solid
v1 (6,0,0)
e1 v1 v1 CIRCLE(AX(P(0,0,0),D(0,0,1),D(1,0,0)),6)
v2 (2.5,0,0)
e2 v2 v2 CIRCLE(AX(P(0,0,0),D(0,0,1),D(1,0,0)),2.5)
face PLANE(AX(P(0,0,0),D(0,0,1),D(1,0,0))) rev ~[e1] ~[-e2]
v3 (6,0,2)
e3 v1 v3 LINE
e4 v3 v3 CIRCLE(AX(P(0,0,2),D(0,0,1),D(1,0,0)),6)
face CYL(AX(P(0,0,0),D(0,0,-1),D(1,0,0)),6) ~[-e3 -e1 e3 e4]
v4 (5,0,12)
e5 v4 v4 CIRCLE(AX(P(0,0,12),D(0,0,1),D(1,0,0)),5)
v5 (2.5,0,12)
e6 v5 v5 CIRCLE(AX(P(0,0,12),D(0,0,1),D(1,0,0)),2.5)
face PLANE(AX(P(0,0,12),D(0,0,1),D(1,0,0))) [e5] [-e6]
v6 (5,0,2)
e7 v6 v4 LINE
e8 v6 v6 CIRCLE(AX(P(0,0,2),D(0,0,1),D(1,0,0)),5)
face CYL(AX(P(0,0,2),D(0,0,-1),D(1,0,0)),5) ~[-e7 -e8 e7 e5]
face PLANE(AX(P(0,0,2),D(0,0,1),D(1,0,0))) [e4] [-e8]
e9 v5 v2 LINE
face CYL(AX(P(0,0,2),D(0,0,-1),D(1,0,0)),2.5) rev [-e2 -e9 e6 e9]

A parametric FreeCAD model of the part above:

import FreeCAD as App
import Part
import Sketcher
from FreeCAD import Vector

doc = App.newDocument("Part")
params = doc.addObject("Spreadsheet::Sheet", "Params")
for row, (alias, value) in enumerate([
    ("sketch1_diameter", "12 mm"),
    ("sketch1_diameter2", "5 mm"),
    ("pad1_length", "2 mm"),
    ("sketch2_diameter", "10 mm"),
    ("sketch2_diameter2", "5 mm"),
    ("pad2_length", "10 mm"),
], start=1):
    params.set(f"A{row}", alias)
    params.set(f"B{row}", "=" + value)
    params.setAlias(f"B{row}", alias)

body = doc.addObject("PartDesign::Body", "Body")

sketch1 = doc.addObject("Sketcher::SketchObject", "Sketch")
body.addObject(sketch1)
sketch1.AttachmentSupport = (doc.XY_Plane, [""])
sketch1.MapMode = "FlatFace"
sketch1.addGeometry([
    Part.Circle(Vector(0, 0, 0), Vector(0, 0, 1), 6),
    Part.Circle(Vector(0, 0, 0), Vector(0, 0, 1), 2.5),
], False)
sketch1.addConstraint([
    Sketcher.Constraint("Coincident", 0, 3, -1, 1),
    Sketcher.Constraint("Coincident", 1, 3, -1, 1),
    Sketcher.Constraint("Diameter", 0, 12.0),
    Sketcher.Constraint("Diameter", 1, 5.0),
])
sketch1.setExpression("Constraints[2]", "Params.sketch1_diameter")
sketch1.setExpression("Constraints[3]", "Params.sketch1_diameter2")
pad1 = doc.addObject("PartDesign::Pad", "Pad")
body.addObject(pad1)
pad1.Profile = sketch1
pad1.setExpression("Length", "Params.pad1_length")

sketch2 = doc.addObject("Sketcher::SketchObject", "Sketch001")
body.addObject(sketch2)
sketch2.AttachmentSupport = (doc.XY_Plane, [""])
sketch2.MapMode = "FlatFace"
sketch2.AttachmentOffset = App.Placement(Vector(0, 0, 2), App.Rotation())
sketch2.addGeometry([
    Part.Circle(Vector(0, 0, 0), Vector(0, 0, 1), 5),
    Part.Circle(Vector(0, 0, 0), Vector(0, 0, 1), 2.5),
], False)
sketch2.addConstraint([
    Sketcher.Constraint("Coincident", 0, 3, -1, 1),
    Sketcher.Constraint("Coincident", 1, 3, -1, 1),
    Sketcher.Constraint("Diameter", 0, 10.0),
    Sketcher.Constraint("Diameter", 1, 5.0),
])
sketch2.setExpression("Constraints[2]", "Params.sketch2_diameter")
sketch2.setExpression("Constraints[3]", "Params.sketch2_diameter2")
pad2 = doc.addObject("PartDesign::Pad", "Pad001")
body.addObject(pad2)
pad2.Profile = sketch2
pad2.setExpression("Length", "Params.pad2_length")

doc.recompute()
